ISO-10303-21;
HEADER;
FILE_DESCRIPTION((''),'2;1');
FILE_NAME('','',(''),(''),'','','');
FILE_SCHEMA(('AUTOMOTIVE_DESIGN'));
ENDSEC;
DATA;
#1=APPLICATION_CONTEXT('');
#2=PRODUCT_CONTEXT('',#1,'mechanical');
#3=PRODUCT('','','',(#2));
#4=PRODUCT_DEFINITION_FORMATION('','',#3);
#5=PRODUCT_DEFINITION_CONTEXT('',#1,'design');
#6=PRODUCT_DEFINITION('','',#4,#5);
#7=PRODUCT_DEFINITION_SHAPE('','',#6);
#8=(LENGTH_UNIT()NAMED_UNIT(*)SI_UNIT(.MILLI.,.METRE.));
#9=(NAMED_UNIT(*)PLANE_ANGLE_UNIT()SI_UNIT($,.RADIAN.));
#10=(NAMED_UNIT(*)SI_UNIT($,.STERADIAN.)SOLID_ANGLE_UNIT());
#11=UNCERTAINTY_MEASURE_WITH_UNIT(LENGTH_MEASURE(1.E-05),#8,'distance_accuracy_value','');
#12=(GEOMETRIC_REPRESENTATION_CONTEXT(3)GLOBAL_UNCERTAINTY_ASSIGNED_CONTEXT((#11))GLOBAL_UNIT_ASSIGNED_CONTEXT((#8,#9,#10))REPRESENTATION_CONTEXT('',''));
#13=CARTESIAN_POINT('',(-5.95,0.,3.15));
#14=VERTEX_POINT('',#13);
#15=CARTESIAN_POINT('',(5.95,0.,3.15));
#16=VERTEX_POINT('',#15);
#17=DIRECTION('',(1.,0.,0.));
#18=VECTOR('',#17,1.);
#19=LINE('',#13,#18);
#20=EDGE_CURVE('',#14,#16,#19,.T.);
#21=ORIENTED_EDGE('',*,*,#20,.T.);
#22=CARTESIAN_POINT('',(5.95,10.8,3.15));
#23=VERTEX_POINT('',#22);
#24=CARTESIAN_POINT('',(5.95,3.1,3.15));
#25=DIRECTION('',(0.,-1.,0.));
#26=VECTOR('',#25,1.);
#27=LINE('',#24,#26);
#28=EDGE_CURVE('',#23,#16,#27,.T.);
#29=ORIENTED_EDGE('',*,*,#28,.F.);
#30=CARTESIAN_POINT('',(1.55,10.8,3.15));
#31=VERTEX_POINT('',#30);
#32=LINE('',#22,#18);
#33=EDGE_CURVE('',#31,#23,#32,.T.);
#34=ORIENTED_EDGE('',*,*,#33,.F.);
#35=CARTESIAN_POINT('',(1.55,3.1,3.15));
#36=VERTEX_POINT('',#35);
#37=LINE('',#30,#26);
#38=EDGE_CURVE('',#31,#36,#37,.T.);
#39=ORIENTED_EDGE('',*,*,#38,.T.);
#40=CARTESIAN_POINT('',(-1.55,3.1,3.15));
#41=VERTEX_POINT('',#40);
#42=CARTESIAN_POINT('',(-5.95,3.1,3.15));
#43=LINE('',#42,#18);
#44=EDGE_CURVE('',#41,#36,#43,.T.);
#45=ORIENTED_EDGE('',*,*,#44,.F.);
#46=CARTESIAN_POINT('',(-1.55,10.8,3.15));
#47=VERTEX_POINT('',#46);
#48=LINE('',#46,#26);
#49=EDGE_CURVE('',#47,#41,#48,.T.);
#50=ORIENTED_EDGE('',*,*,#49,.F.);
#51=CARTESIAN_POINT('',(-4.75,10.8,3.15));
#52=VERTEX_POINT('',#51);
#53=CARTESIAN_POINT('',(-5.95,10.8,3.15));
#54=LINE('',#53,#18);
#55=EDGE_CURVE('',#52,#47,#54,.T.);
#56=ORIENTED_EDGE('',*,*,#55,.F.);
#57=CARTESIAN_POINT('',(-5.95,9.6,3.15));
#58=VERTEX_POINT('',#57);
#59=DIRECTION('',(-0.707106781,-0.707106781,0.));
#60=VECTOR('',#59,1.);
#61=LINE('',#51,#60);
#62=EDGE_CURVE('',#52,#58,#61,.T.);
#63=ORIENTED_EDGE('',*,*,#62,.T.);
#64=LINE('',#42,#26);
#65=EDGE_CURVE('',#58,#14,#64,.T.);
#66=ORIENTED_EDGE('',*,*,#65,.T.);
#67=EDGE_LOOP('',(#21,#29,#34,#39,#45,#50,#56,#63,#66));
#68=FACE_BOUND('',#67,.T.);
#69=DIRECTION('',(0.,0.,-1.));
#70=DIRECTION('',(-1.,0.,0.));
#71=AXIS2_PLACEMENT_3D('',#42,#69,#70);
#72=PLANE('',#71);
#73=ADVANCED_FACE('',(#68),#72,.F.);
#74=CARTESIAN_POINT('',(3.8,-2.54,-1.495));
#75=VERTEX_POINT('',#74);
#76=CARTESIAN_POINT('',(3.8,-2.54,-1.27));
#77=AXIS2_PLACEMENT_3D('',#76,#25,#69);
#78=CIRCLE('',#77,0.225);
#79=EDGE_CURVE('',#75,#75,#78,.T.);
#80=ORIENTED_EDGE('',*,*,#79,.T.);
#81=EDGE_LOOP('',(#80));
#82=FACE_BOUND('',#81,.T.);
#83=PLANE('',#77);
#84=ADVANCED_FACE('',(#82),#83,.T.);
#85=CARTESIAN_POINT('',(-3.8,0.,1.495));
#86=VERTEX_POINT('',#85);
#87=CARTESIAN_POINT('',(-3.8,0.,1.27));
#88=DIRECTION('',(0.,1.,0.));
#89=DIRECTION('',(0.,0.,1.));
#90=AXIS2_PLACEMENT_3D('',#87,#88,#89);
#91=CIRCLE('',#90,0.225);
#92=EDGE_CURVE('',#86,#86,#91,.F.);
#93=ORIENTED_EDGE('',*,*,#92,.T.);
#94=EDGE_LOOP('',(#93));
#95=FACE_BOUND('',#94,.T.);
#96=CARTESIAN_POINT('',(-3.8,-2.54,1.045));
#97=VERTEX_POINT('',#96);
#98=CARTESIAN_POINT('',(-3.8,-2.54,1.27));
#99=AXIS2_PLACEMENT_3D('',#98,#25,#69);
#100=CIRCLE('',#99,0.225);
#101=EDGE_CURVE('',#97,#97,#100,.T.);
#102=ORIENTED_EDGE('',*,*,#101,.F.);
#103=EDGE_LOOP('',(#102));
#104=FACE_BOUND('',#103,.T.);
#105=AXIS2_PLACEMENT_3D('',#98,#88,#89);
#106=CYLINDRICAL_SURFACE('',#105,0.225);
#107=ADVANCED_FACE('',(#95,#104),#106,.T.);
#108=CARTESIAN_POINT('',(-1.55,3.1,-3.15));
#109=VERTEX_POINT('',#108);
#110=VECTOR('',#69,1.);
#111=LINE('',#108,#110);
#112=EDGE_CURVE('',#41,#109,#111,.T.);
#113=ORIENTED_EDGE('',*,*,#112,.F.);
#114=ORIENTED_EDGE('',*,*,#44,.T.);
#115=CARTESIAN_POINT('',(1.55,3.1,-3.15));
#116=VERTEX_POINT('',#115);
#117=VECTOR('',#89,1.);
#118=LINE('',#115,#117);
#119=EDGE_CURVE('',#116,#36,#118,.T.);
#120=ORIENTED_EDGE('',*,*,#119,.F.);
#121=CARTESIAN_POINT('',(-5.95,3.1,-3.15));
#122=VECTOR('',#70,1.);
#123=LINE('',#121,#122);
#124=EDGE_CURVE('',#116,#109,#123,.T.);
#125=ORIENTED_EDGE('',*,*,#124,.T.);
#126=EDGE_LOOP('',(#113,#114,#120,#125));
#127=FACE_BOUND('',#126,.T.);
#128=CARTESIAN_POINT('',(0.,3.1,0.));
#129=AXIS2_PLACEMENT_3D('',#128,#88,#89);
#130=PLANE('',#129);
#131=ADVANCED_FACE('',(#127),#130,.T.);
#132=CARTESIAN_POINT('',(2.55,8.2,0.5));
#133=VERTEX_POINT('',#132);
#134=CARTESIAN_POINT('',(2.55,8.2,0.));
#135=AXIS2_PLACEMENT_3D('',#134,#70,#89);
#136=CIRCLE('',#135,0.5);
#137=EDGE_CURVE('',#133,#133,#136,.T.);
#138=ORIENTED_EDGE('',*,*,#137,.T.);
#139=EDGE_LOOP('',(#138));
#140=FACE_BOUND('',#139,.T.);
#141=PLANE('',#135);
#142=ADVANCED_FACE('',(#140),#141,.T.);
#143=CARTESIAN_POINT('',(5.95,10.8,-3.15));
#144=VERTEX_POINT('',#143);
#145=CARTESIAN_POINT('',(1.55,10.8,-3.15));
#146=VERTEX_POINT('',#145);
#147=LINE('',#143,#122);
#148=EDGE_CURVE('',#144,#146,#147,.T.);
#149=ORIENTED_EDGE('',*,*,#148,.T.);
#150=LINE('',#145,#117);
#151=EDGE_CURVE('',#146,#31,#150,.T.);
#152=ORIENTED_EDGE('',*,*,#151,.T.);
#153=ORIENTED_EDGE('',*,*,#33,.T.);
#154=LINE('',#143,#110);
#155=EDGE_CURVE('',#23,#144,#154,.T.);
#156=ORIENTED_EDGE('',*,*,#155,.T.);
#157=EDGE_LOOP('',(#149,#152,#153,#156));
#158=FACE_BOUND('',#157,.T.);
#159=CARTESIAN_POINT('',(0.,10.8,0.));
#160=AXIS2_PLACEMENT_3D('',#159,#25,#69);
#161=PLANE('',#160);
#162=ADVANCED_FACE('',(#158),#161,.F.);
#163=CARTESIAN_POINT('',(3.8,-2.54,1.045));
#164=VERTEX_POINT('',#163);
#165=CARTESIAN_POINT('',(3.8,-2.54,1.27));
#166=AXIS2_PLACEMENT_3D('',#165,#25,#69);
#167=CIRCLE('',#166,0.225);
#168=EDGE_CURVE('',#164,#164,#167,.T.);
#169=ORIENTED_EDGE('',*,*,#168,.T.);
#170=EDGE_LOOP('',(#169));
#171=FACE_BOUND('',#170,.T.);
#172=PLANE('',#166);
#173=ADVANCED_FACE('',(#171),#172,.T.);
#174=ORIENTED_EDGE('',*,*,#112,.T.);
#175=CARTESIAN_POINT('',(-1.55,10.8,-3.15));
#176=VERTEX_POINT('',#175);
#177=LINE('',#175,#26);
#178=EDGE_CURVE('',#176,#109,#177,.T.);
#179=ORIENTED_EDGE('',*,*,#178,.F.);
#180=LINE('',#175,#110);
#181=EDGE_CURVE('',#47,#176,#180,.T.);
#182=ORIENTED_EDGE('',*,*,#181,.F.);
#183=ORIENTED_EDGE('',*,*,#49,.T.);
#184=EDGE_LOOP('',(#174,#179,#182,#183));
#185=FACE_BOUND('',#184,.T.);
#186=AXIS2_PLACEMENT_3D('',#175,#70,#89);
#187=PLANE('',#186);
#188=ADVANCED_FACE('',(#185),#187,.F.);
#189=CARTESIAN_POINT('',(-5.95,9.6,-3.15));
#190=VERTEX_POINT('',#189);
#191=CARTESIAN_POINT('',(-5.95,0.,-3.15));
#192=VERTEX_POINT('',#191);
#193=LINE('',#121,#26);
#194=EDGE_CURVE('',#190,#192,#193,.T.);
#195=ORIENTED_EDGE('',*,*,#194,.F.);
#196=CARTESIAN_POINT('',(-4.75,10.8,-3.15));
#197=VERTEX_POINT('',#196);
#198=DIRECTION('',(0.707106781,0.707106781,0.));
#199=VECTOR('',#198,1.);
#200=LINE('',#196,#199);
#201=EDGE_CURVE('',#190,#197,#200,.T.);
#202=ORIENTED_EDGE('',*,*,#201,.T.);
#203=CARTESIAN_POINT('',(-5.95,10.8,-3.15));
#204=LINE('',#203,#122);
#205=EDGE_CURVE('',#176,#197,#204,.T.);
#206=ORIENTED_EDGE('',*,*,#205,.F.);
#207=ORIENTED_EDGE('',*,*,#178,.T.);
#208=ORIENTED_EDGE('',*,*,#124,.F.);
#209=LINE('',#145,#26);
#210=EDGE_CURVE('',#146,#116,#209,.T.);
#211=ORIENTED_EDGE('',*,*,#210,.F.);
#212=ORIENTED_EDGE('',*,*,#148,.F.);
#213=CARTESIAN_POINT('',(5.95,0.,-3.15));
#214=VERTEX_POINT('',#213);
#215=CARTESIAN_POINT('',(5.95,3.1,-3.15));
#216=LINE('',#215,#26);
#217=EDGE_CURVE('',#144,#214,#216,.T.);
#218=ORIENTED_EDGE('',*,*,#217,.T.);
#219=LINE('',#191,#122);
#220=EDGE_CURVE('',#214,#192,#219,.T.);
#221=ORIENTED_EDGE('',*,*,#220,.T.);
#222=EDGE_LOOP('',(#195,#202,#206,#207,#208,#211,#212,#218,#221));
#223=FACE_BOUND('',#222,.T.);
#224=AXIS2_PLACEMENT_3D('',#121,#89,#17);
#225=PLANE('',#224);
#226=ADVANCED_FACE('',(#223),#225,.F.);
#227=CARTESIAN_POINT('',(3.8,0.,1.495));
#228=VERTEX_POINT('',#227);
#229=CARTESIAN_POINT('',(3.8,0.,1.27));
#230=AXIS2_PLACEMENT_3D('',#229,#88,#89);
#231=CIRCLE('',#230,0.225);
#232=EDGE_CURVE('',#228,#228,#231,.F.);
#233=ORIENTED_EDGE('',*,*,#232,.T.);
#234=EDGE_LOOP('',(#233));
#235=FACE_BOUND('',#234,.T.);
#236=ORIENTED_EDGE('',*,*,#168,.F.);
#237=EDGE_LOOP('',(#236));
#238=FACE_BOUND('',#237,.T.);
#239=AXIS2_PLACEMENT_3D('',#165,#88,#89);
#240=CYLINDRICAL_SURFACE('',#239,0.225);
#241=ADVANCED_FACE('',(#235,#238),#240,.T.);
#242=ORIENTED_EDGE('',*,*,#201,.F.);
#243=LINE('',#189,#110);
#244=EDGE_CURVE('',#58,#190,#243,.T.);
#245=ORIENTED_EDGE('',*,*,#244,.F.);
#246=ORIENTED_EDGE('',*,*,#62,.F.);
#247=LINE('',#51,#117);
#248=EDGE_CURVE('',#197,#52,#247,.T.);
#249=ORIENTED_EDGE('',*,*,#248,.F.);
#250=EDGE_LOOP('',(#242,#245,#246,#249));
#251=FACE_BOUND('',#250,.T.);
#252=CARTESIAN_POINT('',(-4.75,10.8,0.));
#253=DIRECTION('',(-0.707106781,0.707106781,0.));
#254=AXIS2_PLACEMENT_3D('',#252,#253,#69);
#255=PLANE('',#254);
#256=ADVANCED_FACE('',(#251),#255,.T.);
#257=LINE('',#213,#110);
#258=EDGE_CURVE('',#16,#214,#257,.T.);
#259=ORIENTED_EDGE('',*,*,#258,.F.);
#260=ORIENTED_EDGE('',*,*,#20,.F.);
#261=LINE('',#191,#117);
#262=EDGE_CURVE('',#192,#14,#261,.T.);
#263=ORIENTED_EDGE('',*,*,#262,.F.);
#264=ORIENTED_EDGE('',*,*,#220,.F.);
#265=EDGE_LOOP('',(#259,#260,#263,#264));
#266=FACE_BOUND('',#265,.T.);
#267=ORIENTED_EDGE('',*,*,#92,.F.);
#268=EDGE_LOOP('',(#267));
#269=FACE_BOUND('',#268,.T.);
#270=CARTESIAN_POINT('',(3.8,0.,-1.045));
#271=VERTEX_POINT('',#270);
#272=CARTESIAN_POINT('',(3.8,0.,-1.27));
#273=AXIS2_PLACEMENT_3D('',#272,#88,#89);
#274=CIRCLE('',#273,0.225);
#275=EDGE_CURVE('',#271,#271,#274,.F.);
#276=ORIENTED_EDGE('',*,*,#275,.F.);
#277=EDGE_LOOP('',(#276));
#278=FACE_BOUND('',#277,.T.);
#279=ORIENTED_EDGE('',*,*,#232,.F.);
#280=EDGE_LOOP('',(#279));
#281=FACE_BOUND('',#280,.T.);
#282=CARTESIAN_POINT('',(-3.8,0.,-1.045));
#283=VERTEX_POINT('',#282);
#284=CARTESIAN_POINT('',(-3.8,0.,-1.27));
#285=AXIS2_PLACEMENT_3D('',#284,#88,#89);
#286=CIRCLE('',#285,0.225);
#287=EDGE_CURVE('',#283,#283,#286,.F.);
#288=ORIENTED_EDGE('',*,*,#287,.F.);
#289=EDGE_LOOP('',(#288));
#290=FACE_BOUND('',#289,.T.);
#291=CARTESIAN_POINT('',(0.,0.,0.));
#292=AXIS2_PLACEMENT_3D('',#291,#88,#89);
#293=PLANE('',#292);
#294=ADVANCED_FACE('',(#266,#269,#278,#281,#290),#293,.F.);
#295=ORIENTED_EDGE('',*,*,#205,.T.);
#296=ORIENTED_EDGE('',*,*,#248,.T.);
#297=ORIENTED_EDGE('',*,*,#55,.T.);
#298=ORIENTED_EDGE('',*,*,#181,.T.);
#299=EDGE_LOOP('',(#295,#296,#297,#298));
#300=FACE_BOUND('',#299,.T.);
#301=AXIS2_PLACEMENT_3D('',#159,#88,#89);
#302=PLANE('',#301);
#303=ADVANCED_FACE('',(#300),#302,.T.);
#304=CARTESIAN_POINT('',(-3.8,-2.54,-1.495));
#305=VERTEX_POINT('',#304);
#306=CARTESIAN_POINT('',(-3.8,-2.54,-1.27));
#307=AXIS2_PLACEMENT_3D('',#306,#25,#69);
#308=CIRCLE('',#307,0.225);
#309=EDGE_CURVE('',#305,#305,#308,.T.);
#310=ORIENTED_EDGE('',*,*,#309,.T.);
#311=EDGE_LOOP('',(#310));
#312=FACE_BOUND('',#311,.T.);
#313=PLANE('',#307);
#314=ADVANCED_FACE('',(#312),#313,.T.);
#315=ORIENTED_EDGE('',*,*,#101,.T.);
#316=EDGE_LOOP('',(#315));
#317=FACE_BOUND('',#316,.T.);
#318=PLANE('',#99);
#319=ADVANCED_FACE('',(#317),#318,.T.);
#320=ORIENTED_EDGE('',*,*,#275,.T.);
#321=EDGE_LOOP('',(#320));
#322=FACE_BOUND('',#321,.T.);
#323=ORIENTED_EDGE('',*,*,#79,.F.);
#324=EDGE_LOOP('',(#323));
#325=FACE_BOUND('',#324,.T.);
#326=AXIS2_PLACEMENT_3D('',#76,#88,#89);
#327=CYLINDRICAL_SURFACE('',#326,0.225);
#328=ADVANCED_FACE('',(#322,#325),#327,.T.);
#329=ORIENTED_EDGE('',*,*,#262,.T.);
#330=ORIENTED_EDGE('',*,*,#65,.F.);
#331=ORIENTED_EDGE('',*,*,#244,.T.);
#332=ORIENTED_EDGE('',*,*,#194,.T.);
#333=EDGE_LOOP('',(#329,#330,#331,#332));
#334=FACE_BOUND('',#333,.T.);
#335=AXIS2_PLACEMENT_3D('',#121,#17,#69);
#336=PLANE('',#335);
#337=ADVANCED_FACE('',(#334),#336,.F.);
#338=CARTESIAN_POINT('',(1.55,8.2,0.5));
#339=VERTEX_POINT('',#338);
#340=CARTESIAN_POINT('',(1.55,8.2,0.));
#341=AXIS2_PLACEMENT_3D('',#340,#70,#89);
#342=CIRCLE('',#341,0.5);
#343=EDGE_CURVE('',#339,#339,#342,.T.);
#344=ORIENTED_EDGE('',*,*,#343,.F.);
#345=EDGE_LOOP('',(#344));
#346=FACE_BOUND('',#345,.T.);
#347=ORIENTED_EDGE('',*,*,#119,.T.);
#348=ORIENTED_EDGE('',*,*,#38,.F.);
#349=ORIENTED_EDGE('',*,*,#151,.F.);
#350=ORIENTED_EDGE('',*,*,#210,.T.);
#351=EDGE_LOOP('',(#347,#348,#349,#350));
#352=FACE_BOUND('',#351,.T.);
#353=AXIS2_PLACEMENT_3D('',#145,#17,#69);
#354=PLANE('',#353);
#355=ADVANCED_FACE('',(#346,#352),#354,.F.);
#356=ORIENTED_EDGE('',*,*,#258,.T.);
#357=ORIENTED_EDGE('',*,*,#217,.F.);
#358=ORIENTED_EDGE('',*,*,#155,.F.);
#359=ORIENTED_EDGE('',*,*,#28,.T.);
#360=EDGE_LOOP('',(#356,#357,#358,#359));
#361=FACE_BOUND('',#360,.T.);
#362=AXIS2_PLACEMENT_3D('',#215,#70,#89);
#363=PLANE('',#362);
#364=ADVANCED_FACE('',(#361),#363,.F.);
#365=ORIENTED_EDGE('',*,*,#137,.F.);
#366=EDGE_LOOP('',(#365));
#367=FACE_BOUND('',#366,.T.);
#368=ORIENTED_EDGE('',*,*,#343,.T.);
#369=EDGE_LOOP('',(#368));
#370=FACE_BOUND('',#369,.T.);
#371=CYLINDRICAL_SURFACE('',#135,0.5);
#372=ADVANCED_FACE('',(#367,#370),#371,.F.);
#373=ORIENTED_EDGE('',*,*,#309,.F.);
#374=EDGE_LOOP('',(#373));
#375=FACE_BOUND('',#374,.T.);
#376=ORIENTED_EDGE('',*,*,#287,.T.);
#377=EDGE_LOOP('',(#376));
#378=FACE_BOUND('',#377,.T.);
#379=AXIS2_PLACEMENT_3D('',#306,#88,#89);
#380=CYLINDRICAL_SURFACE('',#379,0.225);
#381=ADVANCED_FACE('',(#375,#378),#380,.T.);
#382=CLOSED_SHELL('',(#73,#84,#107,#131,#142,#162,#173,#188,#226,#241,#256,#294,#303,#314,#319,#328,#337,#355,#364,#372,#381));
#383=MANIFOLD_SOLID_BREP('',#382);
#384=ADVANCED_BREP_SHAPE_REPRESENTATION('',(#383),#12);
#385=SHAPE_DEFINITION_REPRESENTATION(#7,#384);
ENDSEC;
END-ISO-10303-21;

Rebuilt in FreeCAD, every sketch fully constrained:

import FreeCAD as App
import Part
import Sketcher

V = App.Vector
Q = App.Units.Quantity


def edges_at(feature, points):
    """Names of the edges that pass closest to the given points."""
    edges = feature.Shape.Edges
    near = lambda p: min(range(len(edges)), key=lambda i: edges[i].distToShape(Part.Vertex(*p))[0])
    return sorted({f"Edge{near(p) + 1}" for p in points})


def add_polygon(sketch, points):
    """Adds a closed chain of lines whose ends are joined by coincident constraints."""
    first, n = sketch.GeometryCount, len(points)
    for a, b in zip(points, points[1:] + points[:1]):
        sketch.addGeometry(Part.LineSegment(App.Vector(*a, 0), App.Vector(*b, 0)), False)
    for i in range(n):
        sketch.addConstraint(Sketcher.Constraint("Coincident", first + i, 2, first + (i + 1) % n, 1))

doc = App.newDocument("Part")
body = doc.addObject("PartDesign::Body", "Body")

# Sketch on XZ plane
sketch1 = doc.addObject("Sketcher::SketchObject", "Sketch")
body.addObject(sketch1)
sketch1.AttachmentSupport = (doc.XZ_Plane, [""])
sketch1.MapMode = "FlatFace"
add_polygon(sketch1, [(-6, -3), (-6, 3), (6, 3), (6, -3)])  # lines 0-3
sketch1.addConstraint(Sketcher.Constraint("Vertical", 0))
sketch1.addConstraint(Sketcher.Constraint("Horizontal", 1))
sketch1.addConstraint(Sketcher.Constraint("Vertical", 2))
sketch1.addConstraint(Sketcher.Constraint("Horizontal", 3))
sketch1.addConstraint(Sketcher.Constraint("Symmetric", 0, 2, 2, 2, -1, 1))
sketch1.addConstraint(Sketcher.Constraint("DistanceX", 1, 1, 1, 2, Q("11.9 mm")))
sketch1.addConstraint(Sketcher.Constraint("DistanceY", 0, 1, 0, 2, Q("6.3 mm")))
pad1 = doc.addObject("PartDesign::Pad", "Pad")
body.addObject(pad1)
pad1.Profile = sketch1
pad1.Length = 3.1
pad1.Reversed = True

# Sketch on XZ plane
sketch2 = doc.addObject("Sketcher::SketchObject", "Sketch001")
body.addObject(sketch2)
sketch2.AttachmentSupport = (doc.XZ_Plane, [""])
sketch2.MapMode = "FlatFace"
sketch2.AttachmentOffset = App.Placement(V(0, 0, -3.1), App.Rotation())
add_polygon(sketch2, [(-6, -3.1), (-6, 3.1), (-1.6, 3.1), (-1.6, -3.1)])  # lines 0-3
add_polygon(sketch2, [(1.6, -3.1), (1.6, 3.1), (6, 3.1), (6, -3.1)])  # lines 4-7
sketch2.addConstraint(Sketcher.Constraint("Vertical", 0))
sketch2.addConstraint(Sketcher.Constraint("Horizontal", 1))
sketch2.addConstraint(Sketcher.Constraint("Vertical", 2))
sketch2.addConstraint(Sketcher.Constraint("Horizontal", 3))
sketch2.addConstraint(Sketcher.Constraint("Vertical", 4))
sketch2.addConstraint(Sketcher.Constraint("Horizontal", 5))
sketch2.addConstraint(Sketcher.Constraint("Vertical", 6))
sketch2.addConstraint(Sketcher.Constraint("Horizontal", 7))
sketch2.addConstraint(Sketcher.Constraint("Symmetric", 2, 2, 4, 2, -1, 1))
sketch2.addConstraint(Sketcher.Constraint("Symmetric", 0, 2, 6, 2, -1, 1))
sketch2.addConstraint(Sketcher.Constraint("Horizontal", 1, 2, 4, 2))
sketch2.addConstraint(Sketcher.Constraint("DistanceX", 1, 1, 1, 2, Q("4.4 mm")))
sketch2.addConstraint(Sketcher.Constraint("DistanceY", 0, 1, 0, 2, Q("6.3 mm")))
sketch2.addConstraint(Sketcher.Constraint("DistanceX", 1, 2, 4, 2, Q("3.1 mm")))
pad2 = doc.addObject("PartDesign::Pad", "Pad001")
body.addObject(pad2)
pad2.Profile = sketch2
pad2.Length = 7.7
pad2.Reversed = True

# Sketch on YZ plane
sketch3 = doc.addObject("Sketcher::SketchObject", "Sketch002")
body.addObject(sketch3)
sketch3.AttachmentSupport = (doc.YZ_Plane, [""])
sketch3.MapMode = "FlatFace"
sketch3.AttachmentOffset = App.Placement(V(0, 0, 1.55), App.Rotation())
sketch3.addGeometry(Part.Circle(V(8.2, 0, 0), V(0, 0, 1), 0.5), False)
sketch3.addConstraint(Sketcher.Constraint("PointOnObject", 0, 3, -1))
sketch3.addConstraint(Sketcher.Constraint("Diameter", 0, Q("1 mm")))
sketch3.addConstraint(Sketcher.Constraint("DistanceX", -1, 1, 0, 3, Q("8.2 mm")))
pocket1 = doc.addObject("PartDesign::Pocket", "Pocket")
body.addObject(pocket1)
pocket1.Profile = sketch3
pocket1.Length = 1
pocket1.Reversed = True
doc.recompute()

chamfer = doc.addObject("PartDesign::Chamfer", "Chamfer")
body.addObject(chamfer)
chamfer.Base = (pocket1, edges_at(pocket1, [(-5.95, 10.8, 0)]))
chamfer.Size = 1.2

# Sketch on XZ plane
sketch4 = doc.addObject("Sketcher::SketchObject", "Sketch003")
body.addObject(sketch4)
sketch4.AttachmentSupport = (doc.XZ_Plane, [""])
sketch4.MapMode = "FlatFace"
sketch4.addGeometry(Part.Circle(V(-3.8, 1.27, 0), V(0, 0, 1), 0.23), False)
sketch4.addGeometry(Part.Circle(V(-3.8, -1.27, 0), V(0, 0, 1), 0.23), False)
sketch4.addGeometry(Part.Circle(V(3.8, 1.27, 0), V(0, 0, 1), 0.23), False)
sketch4.addGeometry(Part.Circle(V(3.8, -1.27, 0), V(0, 0, 1), 0.23), False)
sketch4.addConstraint(Sketcher.Constraint("Equal", 0, 1))
sketch4.addConstraint(Sketcher.Constraint("Equal", 1, 2))
sketch4.addConstraint(Sketcher.Constraint("Equal", 2, 3))
sketch4.addConstraint(Sketcher.Constraint("Symmetric", 1, 3, 2, 3, -1, 1))
sketch4.addConstraint(Sketcher.Constraint("Symmetric", 0, 3, 3, 3, -1, 1))
sketch4.addConstraint(Sketcher.Constraint("Symmetric", 0, 3, 2, 3, -2))
sketch4.addConstraint(Sketcher.Constraint("Diameter", 0, Q("0.45 mm")))
sketch4.addConstraint(Sketcher.Constraint("DistanceX", 0, 3, -1, 1, Q("3.8 mm")))
sketch4.addConstraint(Sketcher.Constraint("DistanceY", -1, 1, 0, 3, Q("1.27 mm")))
pad3 = doc.addObject("PartDesign::Pad", "Pad002")
body.addObject(pad3)
pad3.Profile = sketch4
pad3.Length = 2.54

doc.recompute()
